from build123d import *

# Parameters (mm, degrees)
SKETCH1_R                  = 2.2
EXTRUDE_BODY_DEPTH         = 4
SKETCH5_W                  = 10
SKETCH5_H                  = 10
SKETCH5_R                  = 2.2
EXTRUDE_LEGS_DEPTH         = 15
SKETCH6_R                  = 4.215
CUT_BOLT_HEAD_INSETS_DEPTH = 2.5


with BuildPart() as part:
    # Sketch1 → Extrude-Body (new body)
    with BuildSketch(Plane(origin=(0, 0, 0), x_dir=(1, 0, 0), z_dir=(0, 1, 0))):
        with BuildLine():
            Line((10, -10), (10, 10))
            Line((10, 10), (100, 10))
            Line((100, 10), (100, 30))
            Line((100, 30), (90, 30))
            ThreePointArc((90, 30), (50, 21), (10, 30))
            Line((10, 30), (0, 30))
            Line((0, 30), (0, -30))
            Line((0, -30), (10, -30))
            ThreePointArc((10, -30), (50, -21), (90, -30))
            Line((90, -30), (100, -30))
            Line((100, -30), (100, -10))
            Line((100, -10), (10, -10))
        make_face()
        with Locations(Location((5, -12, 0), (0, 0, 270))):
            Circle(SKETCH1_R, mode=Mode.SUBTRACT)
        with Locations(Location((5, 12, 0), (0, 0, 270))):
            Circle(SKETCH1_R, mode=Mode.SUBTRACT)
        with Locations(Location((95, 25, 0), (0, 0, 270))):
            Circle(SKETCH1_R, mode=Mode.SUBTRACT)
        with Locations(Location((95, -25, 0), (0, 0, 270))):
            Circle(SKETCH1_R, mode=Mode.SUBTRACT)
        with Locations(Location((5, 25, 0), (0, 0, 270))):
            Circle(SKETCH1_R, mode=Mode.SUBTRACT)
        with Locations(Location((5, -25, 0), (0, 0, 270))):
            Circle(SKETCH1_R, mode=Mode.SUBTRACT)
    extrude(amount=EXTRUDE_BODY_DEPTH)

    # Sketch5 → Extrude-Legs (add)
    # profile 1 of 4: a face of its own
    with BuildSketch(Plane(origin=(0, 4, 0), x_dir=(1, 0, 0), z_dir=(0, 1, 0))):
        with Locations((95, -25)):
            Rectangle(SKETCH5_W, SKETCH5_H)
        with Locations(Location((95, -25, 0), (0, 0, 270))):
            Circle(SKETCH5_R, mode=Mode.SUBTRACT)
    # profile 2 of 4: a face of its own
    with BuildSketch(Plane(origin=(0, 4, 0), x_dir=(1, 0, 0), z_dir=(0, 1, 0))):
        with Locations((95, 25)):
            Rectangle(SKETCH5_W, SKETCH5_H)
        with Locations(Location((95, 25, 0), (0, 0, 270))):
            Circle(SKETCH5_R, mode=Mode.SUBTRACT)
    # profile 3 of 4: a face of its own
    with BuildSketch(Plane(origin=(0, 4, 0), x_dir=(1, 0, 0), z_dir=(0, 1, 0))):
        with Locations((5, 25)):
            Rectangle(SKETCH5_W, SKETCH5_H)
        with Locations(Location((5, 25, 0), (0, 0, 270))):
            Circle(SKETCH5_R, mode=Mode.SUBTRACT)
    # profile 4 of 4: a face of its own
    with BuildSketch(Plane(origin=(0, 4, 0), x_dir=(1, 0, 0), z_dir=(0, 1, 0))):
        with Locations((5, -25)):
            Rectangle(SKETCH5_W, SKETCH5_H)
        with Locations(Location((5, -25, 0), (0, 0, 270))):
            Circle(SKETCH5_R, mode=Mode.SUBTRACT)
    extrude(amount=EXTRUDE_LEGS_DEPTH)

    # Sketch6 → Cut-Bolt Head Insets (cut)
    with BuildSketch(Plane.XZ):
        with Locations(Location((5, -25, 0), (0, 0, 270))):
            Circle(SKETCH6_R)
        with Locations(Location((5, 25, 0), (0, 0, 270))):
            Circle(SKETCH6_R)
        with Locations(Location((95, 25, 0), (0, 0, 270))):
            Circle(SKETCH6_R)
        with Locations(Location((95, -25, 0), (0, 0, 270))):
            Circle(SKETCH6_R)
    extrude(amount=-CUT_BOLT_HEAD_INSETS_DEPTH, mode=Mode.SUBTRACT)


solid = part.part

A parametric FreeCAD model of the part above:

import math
import FreeCAD as App
import Part
import Sketcher
from FreeCAD import Vector

doc = App.newDocument("Part")
body = doc.addObject("PartDesign::Body", "Body")

sketch1 = body.newObject("Sketcher::SketchObject", "Sketch")
sketch1.AttachmentSupport = (doc.getObject("XZ_Plane"), [""])
sketch1.MapMode = "FlatFace"
sketch1.addGeometry([
    Part.LineSegment(Vector(10, 10, 0), Vector(10, -10, 0)),
    Part.LineSegment(Vector(10, -10, 0), Vector(100, -10, 0)),
    Part.LineSegment(Vector(100, -10, 0), Vector(100, -30, 0)),
    Part.LineSegment(Vector(100, -30, 0), Vector(90, -30, 0)),
    Part.ArcOfCircle(Part.Circle(Vector(50, -114.4, 0), Vector(0, 0, 1), 93.4), math.radians(65), math.radians(115)),
    Part.LineSegment(Vector(10, -30, 0), Vector(0, -30, 0)),
    Part.LineSegment(Vector(0, -30, 0), Vector(0, 30, 0)),
    Part.LineSegment(Vector(0, 30, 0), Vector(10, 30, 0)),
    Part.ArcOfCircle(Part.Circle(Vector(50, 114.4, 0), Vector(0, 0, 1), 93.4), math.radians(-115), math.radians(-65)),
    Part.LineSegment(Vector(90, 30, 0), Vector(100, 30, 0)),
    Part.LineSegment(Vector(100, 30, 0), Vector(100, 10, 0)),
    Part.LineSegment(Vector(100, 10, 0), Vector(10, 10, 0)),
    Part.Circle(Vector(5, 25, 0), Vector(0, 0, 1), 2.2),
    Part.Circle(Vector(5, 12, 0), Vector(0, 0, 1), 2.2),
    Part.Circle(Vector(95, 25, 0), Vector(0, 0, 1), 2.2),
    Part.Circle(Vector(5, -12, 0), Vector(0, 0, 1), 2.2),
    Part.Circle(Vector(5, -25, 0), Vector(0, 0, 1), 2.2),
    Part.Circle(Vector(95, -25, 0), Vector(0, 0, 1), 2.2),
], False)
sketch1.addConstraint([
    Sketcher.Constraint("Coincident", 0, 2, 1, 1),
    Sketcher.Constraint("Coincident", 1, 2, 2, 1),
    Sketcher.Constraint("Coincident", 2, 2, 3, 1),
    Sketcher.Constraint("Coincident", 3, 2, 4, 1),
    Sketcher.Constraint("Coincident", 4, 2, 5, 1),
    Sketcher.Constraint("Coincident", 5, 2, 6, 1),
    Sketcher.Constraint("Coincident", 6, 2, 7, 1),
    Sketcher.Constraint("Coincident", 7, 2, 8, 1),
    Sketcher.Constraint("Coincident", 8, 2, 9, 1),
    Sketcher.Constraint("Coincident", 9, 2, 10, 1),
    Sketcher.Constraint("Coincident", 10, 2, 11, 1),
    Sketcher.Constraint("Coincident", 11, 2, 0, 1),
    Sketcher.Constraint("Vertical", 0),
    Sketcher.Constraint("Horizontal", 1),
    Sketcher.Constraint("Vertical", 2),
    Sketcher.Constraint("Horizontal", 3),
    Sketcher.Constraint("Horizontal", 5),
    Sketcher.Constraint("Vertical", 6),
    Sketcher.Constraint("Horizontal", 7),
    Sketcher.Constraint("Horizontal", 9),
    Sketcher.Constraint("Vertical", 10),
    Sketcher.Constraint("Horizontal", 11),
    Sketcher.Constraint("Equal", 4, 8),
    Sketcher.Constraint("Equal", 12, 13),
    Sketcher.Constraint("Equal", 13, 14),
    Sketcher.Constraint("Equal", 14, 15),
    Sketcher.Constraint("Equal", 15, 16),
    Sketcher.Constraint("Equal", 16, 17),
    Sketcher.Constraint("Symmetric", 5, 2, 6, 2, -1, 1),
    Sketcher.Constraint("Symmetric", 4, 3, 8, 3, -1),
    Sketcher.Constraint("Symmetric", 13, 3, 15, 3, -1),
    Sketcher.Constraint("Symmetric", 12, 3, 16, 3, -1),
    Sketcher.Constraint("Symmetric", 14, 3, 17, 3, -1),
    Sketcher.Constraint("Symmetric", 2, 2, 9, 2, -1),
    Sketcher.Constraint("Horizontal", 12, 3, 14, 3),
    Sketcher.Constraint("Horizontal", 3, 2, 4, 2),
    Sketcher.Constraint("Vertical", 12, 3, 13, 3),
    Sketcher.Constraint("Vertical", 0, 2, 4, 2),
    Sketcher.Constraint("Equal", 3, 5),
    Sketcher.Constraint("Equal", 0, 2),
    Sketcher.Constraint("Equal", 2, 10),
    Sketcher.Constraint("Diameter", 12, 4.4),
    Sketcher.Constraint("DistanceX", 1, 1, 1, 2, 90.0),
    Sketcher.Constraint("DistanceX", 3, 2, 3, 1, 10.0),
    Sketcher.Constraint("DistanceY", 0, 2, 0, 1, 20.0),
    Sketcher.Constraint("DistanceX", -1, 1, 12, 3, 5.0),
    Sketcher.Constraint("DistanceY", -1, 1, 12, 3, 25.0),
    Sketcher.Constraint("DistanceY", -1, 1, 13, 3, 12.0),
    Sketcher.Constraint("DistanceX", -1, 1, 14, 3, 95.0),
    Sketcher.Constraint("Radius", 4, 93.388889),
])
pad1 = body.newObject("PartDesign::Pad", "Pad")
pad1.Profile = sketch1
pad1.Length = 4
pad1.Reversed = True

sketch2 = body.newObject("Sketcher::SketchObject", "Sketch001")
sketch2.AttachmentSupport = (doc.getObject("XZ_Plane"), [""])
sketch2.MapMode = "FlatFace"
sketch2.AttachmentOffset = App.Placement(Vector(0, 0, -4), App.Rotation())
sketch2.addGeometry([
    Part.LineSegment(Vector(90, 20, 0), Vector(90, 30, 0)),
    Part.LineSegment(Vector(90, 30, 0), Vector(100, 30, 0)),
    Part.LineSegment(Vector(100, 30, 0), Vector(100, 20, 0)),
    Part.LineSegment(Vector(100, 20, 0), Vector(90, 20, 0)),
    Part.Circle(Vector(95, 25, 0), Vector(0, 0, 1), 2.2),
    Part.LineSegment(Vector(90, -30, 0), Vector(90, -20, 0)),
    Part.LineSegment(Vector(90, -20, 0), Vector(100, -20, 0)),
    Part.LineSegment(Vector(100, -20, 0), Vector(100, -30, 0)),
    Part.LineSegment(Vector(100, -30, 0), Vector(90, -30, 0)),
    Part.Circle(Vector(95, -25, 0), Vector(0, 0, 1), 2.2),
    Part.LineSegment(Vector(0, -30, 0), Vector(0, -20, 0)),
    Part.LineSegment(Vector(0, -20, 0), Vector(10, -20, 0)),
    Part.LineSegment(Vector(10, -20, 0), Vector(10, -30, 0)),
    Part.LineSegment(Vector(10, -30, 0), Vector(0, -30, 0)),
    Part.Circle(Vector(5, -25, 0), Vector(0, 0, 1), 2.2),
    Part.LineSegment(Vector(0, 20, 0), Vector(0, 30, 0)),
    Part.LineSegment(Vector(0, 30, 0), Vector(10, 30, 0)),
    Part.LineSegment(Vector(10, 30, 0), Vector(10, 20, 0)),
    Part.LineSegment(Vector(10, 20, 0), Vector(0, 20, 0)),
    Part.Circle(Vector(5, 25, 0), Vector(0, 0, 1), 2.2),
], False)
sketch2.addConstraint([
    Sketcher.Constraint("Coincident", 0, 2, 1, 1),
    Sketcher.Constraint("Coincident", 1, 2, 2, 1),
    Sketcher.Constraint("Coincident", 2, 2, 3, 1),
    Sketcher.Constraint("Coincident", 3, 2, 0, 1),
    Sketcher.Constraint("Coincident", 5, 2, 6, 1),
    Sketcher.Constraint("Coincident", 6, 2, 7, 1),
    Sketcher.Constraint("Coincident", 7, 2, 8, 1),
    Sketcher.Constraint("Coincident", 8, 2, 5, 1),
    Sketcher.Constraint("Coincident", 10, 2, 11, 1),
    Sketcher.Constraint("Coincident", 11, 2, 12, 1),
    Sketcher.Constraint("Coincident", 12, 2, 13, 1),
    Sketcher.Constraint("Coincident", 13, 2, 10, 1),
    Sketcher.Constraint("Coincident", 15, 2, 16, 1),
    Sketcher.Constraint("Coincident", 16, 2, 17, 1),
    Sketcher.Constraint("Coincident", 17, 2, 18, 1),
    Sketcher.Constraint("Coincident", 18, 2, 15, 1),
    Sketcher.Constraint("Vertical", 0),
    Sketcher.Constraint("Horizontal", 1),
    Sketcher.Constraint("Vertical", 2),
    Sketcher.Constraint("Horizontal", 3),
    Sketcher.Constraint("Vertical", 5),
    Sketcher.Constraint("Horizontal", 6),
    Sketcher.Constraint("Vertical", 7),
    Sketcher.Constraint("Horizontal", 8),
    Sketcher.Constraint("Vertical", 10),
    Sketcher.Constraint("Horizontal", 11),
    Sketcher.Constraint("Vertical", 12),
    Sketcher.Constraint("Horizontal", 13),
    Sketcher.Constraint("Vertical", 15),
    Sketcher.Constraint("Horizontal", 16),
    Sketcher.Constraint("Vertical", 17),
    Sketcher.Constraint("Horizontal", 18),
    Sketcher.Constraint("Equal", 4, 9),
    Sketcher.Constraint("Equal", 9, 14),
    Sketcher.Constraint("Equal", 14, 19),
    Sketcher.Constraint("Symmetric", 13, 2, 15, 2, -1, 1),
    Sketcher.Constraint("Symmetric", 4, 3, 9, 3, -1),
    Sketcher.Constraint("Symmetric", 14, 3, 19, 3, -1),
    Sketcher.Constraint("Symmetric", 3, 2, 5, 2, -1),
    Sketcher.Constraint("Symmetric", 1, 2, 7, 2, -1),
    Sketcher.Constraint("Symmetric", 11, 2, 17, 2, -1),
    Sketcher.Constraint("PointOnObject", 10, 2, -2),
    Sketcher.Constraint("Horizontal", 9, 3, 14, 3),
    Sketcher.Constraint("Horizontal", 6, 2, 10, 2),
    Sketcher.Constraint("Horizontal", 8, 2, 12, 2),
    Sketcher.Constraint("Equal", 8, 11),
    Sketcher.Constraint("Equal", 18, 0),
    Sketcher.Constraint("Diameter", 4, 4.4),
    Sketcher.Constraint("DistanceX", 1, 1, 1, 2, 10.0),
    Sketcher.Constraint("DistanceX", -1, 1, 4, 3, 95.0),
    Sketcher.Constraint("DistanceY", -1, 1, 4, 3, 25.0),
    Sketcher.Constraint("DistanceX", -1, 1, 14, 3, 5.0),
    Sketcher.Constraint("DistanceX", -1, 1, 0, 2, 90.0),
    Sketcher.Constraint("DistanceY", -1, 1, 0, 2, 30.0),
])
pad2 = body.newObject("PartDesign::Pad", "Pad001")
pad2.Profile = sketch2
pad2.Length = 15
pad2.Reversed = True

sketch3 = body.newObject("Sketcher::SketchObject", "Sketch002")
sketch3.AttachmentSupport = (doc.getObject("XZ_Plane"), [""])
sketch3.MapMode = "FlatFace"
sketch3.addGeometry([
    Part.Circle(Vector(5, -25, 0), Vector(0, 0, 1), 4.2),
    Part.Circle(Vector(5, 25, 0), Vector(0, 0, 1), 4.2),
    Part.Circle(Vector(95, 25, 0), Vector(0, 0, 1), 4.2),
    Part.Circle(Vector(95, -25, 0), Vector(0, 0, 1), 4.2),
], False)
sketch3.addConstraint([
    Sketcher.Constraint("Equal", 0, 1),
    Sketcher.Constraint("Equal", 1, 2),
    Sketcher.Constraint("Equal", 2, 3),
    Sketcher.Constraint("Symmetric", 0, 3, 1, 3, -1),
    Sketcher.Constraint("Symmetric", 2, 3, 3, 3, -1),
    Sketcher.Constraint("Horizontal", 1, 3, 2, 3),
    Sketcher.Constraint("Diameter", 0, 8.43),
    Sketcher.Constraint("DistanceX", -1, 1, 0, 3, 5.0),
    Sketcher.Constraint("DistanceY", 0, 3, -1, 1, 25.0),
    Sketcher.Constraint("DistanceX", -1, 1, 2, 3, 95.0),
])
pocket1 = body.newObject("PartDesign::Pocket", "Pocket")
pocket1.Profile = sketch3
pocket1.Length = 2.5

doc.recompute()
